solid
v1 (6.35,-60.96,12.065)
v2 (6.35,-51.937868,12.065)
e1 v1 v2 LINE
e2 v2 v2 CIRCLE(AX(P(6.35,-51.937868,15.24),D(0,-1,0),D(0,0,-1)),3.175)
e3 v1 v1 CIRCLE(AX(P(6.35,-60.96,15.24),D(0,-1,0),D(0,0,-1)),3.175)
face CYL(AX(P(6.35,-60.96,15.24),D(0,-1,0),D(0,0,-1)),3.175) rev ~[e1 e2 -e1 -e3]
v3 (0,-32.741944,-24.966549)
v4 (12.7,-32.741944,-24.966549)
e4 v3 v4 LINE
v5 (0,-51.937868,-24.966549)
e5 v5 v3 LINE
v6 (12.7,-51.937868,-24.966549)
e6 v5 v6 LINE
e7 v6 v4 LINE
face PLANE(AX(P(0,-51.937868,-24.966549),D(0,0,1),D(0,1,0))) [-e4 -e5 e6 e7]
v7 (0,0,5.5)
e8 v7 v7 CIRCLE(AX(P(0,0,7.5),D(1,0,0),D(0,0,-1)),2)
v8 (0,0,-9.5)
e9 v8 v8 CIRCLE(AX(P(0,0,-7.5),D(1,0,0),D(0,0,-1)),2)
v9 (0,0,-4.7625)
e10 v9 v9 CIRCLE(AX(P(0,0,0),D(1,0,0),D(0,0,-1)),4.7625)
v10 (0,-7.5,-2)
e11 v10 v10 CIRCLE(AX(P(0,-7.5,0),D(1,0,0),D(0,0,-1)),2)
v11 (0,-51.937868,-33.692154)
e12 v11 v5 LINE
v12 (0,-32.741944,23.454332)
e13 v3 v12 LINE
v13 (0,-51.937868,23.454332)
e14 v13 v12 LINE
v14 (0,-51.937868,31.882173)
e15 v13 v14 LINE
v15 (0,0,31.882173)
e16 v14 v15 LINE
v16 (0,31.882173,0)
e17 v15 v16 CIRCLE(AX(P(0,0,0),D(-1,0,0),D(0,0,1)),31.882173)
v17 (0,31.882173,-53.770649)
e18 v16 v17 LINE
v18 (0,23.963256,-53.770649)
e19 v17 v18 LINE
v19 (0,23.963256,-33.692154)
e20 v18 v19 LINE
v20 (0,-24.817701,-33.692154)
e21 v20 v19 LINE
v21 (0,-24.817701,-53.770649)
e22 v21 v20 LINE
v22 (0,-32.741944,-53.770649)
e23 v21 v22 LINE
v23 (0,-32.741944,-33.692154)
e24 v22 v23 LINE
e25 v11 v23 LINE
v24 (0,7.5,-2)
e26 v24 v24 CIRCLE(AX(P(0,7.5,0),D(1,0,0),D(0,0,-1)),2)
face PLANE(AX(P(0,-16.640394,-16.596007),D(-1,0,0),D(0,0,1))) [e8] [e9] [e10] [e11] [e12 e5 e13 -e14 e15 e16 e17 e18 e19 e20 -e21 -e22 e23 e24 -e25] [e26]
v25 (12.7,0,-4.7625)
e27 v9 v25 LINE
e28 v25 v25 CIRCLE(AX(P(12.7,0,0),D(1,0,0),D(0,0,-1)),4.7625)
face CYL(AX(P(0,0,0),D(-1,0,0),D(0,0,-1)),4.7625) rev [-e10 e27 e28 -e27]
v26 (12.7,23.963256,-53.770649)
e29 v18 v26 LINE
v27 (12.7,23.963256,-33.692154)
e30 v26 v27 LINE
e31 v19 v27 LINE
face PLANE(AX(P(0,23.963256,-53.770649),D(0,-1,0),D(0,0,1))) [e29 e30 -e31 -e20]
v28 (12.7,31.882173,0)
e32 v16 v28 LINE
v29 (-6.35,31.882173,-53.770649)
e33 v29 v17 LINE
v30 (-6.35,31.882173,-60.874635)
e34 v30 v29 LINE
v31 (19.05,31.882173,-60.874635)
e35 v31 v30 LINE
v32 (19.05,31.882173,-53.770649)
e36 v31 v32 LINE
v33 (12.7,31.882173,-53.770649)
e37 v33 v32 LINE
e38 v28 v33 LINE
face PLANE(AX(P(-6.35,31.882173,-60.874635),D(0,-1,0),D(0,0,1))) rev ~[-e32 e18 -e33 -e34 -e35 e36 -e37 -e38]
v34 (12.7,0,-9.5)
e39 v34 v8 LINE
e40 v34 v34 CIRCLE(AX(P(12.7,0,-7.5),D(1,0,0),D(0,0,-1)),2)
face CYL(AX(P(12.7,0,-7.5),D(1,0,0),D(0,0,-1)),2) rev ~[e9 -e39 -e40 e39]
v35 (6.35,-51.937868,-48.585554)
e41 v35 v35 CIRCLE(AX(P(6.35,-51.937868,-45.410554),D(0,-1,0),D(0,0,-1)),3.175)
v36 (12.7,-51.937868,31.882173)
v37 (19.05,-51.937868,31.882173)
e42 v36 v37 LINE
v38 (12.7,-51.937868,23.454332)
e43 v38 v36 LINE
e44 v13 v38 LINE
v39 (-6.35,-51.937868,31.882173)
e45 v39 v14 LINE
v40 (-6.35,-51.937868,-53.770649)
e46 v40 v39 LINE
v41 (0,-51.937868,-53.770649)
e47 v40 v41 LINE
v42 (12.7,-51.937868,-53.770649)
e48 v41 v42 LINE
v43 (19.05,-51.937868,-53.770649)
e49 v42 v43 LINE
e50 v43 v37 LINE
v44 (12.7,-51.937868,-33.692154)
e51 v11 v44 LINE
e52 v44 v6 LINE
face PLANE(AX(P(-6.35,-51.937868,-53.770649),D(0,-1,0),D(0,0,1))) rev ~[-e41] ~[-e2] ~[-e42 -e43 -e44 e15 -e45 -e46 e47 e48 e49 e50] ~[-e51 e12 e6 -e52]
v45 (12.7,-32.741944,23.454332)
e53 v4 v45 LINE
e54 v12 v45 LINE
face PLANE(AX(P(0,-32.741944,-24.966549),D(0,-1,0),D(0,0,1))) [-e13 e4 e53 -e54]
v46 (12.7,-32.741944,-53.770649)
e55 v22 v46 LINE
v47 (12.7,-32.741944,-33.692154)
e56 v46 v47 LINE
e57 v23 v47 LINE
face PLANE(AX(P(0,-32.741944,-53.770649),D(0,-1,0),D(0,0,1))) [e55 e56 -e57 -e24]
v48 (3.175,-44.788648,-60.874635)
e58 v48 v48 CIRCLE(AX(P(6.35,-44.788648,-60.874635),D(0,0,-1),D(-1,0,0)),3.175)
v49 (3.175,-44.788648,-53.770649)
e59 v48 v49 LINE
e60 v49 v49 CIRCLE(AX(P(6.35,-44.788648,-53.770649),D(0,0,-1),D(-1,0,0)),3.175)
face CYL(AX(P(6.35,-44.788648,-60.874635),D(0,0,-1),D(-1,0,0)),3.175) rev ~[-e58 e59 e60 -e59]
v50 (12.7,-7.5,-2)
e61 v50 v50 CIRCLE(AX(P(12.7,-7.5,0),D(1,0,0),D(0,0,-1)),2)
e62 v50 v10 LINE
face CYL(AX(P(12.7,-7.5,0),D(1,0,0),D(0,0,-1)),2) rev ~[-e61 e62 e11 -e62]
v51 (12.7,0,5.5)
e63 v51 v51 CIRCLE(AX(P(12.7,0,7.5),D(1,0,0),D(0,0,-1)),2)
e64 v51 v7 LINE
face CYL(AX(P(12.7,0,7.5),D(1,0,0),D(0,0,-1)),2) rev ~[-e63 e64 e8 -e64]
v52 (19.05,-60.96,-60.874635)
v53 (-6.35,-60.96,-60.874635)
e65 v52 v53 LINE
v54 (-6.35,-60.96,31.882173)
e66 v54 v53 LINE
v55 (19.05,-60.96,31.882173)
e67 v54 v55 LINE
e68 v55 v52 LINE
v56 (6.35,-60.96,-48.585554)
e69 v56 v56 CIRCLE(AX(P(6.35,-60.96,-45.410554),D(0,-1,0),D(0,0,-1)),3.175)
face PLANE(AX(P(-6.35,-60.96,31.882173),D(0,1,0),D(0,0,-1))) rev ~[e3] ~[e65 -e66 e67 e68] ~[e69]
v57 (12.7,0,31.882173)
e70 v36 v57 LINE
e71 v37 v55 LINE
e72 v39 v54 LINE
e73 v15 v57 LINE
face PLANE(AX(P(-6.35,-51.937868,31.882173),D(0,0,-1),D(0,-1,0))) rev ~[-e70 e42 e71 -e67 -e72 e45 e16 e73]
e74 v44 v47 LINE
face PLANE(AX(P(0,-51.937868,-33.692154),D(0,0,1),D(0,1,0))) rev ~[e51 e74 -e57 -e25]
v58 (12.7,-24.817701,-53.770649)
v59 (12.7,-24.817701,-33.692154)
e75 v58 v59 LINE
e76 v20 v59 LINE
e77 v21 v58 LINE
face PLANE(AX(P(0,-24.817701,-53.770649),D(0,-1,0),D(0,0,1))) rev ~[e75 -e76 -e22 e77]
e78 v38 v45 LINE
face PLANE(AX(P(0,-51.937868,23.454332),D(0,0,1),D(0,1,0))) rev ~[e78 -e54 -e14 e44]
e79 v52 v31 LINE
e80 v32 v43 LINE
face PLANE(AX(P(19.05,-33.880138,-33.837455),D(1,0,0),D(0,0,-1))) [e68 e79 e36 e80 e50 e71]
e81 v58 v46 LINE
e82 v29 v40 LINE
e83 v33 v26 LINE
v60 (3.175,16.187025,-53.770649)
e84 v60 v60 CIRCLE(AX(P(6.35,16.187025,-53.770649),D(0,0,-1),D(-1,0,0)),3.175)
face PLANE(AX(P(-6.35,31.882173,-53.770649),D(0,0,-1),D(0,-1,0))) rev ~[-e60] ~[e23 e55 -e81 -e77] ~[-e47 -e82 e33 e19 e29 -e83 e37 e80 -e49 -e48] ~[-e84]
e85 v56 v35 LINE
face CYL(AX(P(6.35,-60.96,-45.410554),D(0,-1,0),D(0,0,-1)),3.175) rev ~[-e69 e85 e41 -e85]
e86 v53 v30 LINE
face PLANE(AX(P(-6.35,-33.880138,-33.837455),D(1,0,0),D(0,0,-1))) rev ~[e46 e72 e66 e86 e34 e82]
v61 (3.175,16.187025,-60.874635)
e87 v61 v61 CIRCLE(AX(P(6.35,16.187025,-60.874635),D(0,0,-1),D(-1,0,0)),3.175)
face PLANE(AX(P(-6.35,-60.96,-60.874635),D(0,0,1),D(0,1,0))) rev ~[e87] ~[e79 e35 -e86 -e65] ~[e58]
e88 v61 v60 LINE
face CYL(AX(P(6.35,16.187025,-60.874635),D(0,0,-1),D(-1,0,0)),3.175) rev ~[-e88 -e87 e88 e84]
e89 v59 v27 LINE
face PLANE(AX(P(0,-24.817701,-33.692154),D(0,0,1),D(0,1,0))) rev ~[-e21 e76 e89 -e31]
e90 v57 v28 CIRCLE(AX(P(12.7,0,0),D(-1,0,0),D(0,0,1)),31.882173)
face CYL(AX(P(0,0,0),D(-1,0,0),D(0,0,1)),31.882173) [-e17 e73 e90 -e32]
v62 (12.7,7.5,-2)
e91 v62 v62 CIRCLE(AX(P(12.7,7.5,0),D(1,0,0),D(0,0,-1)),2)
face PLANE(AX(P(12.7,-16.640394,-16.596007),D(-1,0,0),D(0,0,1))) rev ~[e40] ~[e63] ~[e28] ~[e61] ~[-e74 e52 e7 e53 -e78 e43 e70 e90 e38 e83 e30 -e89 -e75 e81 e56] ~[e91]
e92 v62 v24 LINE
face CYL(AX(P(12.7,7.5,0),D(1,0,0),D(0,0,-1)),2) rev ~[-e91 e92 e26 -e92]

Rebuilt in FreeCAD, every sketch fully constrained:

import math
import FreeCAD as App
import Part
import Sketcher
from FreeCAD import Vector
Q = App.Units.Quantity


def add_polygon(sketch, points):
    """Adds a closed chain of lines whose ends are joined by coincident constraints."""
    first, n = sketch.GeometryCount, len(points)
    for a, b in zip(points, points[1:] + points[:1]):
        sketch.addGeometry(Part.LineSegment(App.Vector(*a, 0), App.Vector(*b, 0)), False)
    for i in range(n):
        sketch.addConstraint(Sketcher.Constraint("Coincident", first + i, 2, first + (i + 1) % n, 1))

doc = App.newDocument("Part")
body = doc.addObject("PartDesign::Body", "Body")

# Sketch on YZ plane
sketch1 = body.newObject("Sketcher::SketchObject", "Sketch")
sketch1.AttachmentSupport = (doc.getObject("YZ_Plane"), [""])
sketch1.MapMode = "FlatFace"
sketch1.addGeometry([
    Part.LineSegment(Vector(31.9, -60.9, 0), Vector(31.9, 0, 0)),  # 0
    Part.ArcOfCircle(Part.Circle(Vector(0, 0, 0), Vector(0, 0, 1), 31.9), math.radians(0), math.radians(90)),  # 1
    Part.LineSegment(Vector(0, 31.9, 0), Vector(-61, 31.9, 0)),  # 2
    Part.LineSegment(Vector(-61, 31.9, 0), Vector(-61, -60.9, 0)),  # 3
    Part.LineSegment(Vector(-61, -60.9, 0), Vector(31.9, -60.9, 0)),  # 4
    Part.Circle(Vector(0, 0, 0), Vector(0, 0, 1), 4.8),  # 5
], False)
sketch1.addConstraint([
    Sketcher.Constraint("Tangent", 0, 2, 1, 1),
    Sketcher.Constraint("Tangent", 1, 2, 2, 1),
    Sketcher.Constraint("Coincident", 2, 2, 3, 1),
    Sketcher.Constraint("Coincident", 3, 2, 4, 1),
    Sketcher.Constraint("Coincident", 4, 2, 0, 1),
    Sketcher.Constraint("Vertical", 0),
    Sketcher.Constraint("Horizontal", 2),
    Sketcher.Constraint("Vertical", 3),
    Sketcher.Constraint("Horizontal", 4),
    Sketcher.Constraint("Coincident", 1, 3, -1, 1),
    Sketcher.Constraint("Coincident", 5, 3, -1, 1),
    Sketcher.Constraint("Diameter", 5, Q("0.375 in")),
    Sketcher.Constraint("DistanceX", 2, 2, 2, 1, Q("2.4 in")),
    Sketcher.Constraint("Radius", 1, Q("31.882173 mm")),
    Sketcher.Constraint("DistanceY", 0, 1, 0, 2, Q("60.874635 mm")),
])
pad1 = body.newObject("PartDesign::Pad", "Pad")
pad1.Profile = sketch1
pad1.Length = Q("0.5 in")

# Sketch on YZ plane
sketch2 = body.newObject("Sketcher::SketchObject", "Sketch001")
sketch2.AttachmentSupport = (doc.getObject("YZ_Plane"), [""])
sketch2.MapMode = "FlatFace"
sketch2.AttachmentOffset = App.Placement(Vector(0, 0, 0.5 * 25.4), App.Rotation())
add_polygon(sketch2, [(32, -61), (32, -54), (-52, -54), (-52, 32), (-61, 32), (-61, -61)])  # lines 0-5
sketch2.addConstraint([
    Sketcher.Constraint("Vertical", 0),
    Sketcher.Constraint("Horizontal", 1),
    Sketcher.Constraint("Vertical", 2),
    Sketcher.Constraint("Horizontal", 3),
    Sketcher.Constraint("Vertical", 4),
    Sketcher.Constraint("Horizontal", 5),
    Sketcher.Constraint("DistanceX", 3, 2, -1, 1, Q("2.4 in")),
    Sketcher.Constraint("DistanceX", 1, 2, 1, 1, Q("83.820041 mm")),
    Sketcher.Constraint("DistanceY", 2, 1, 2, 2, Q("85.652822 mm")),
    Sketcher.Constraint("DistanceX", 3, 2, 3, 1, Q("9.022132 mm")),
    Sketcher.Constraint("DistanceY", 0, 1, 0, 2, Q("7.103986 mm")),
    Sketcher.Constraint("DistanceY", 0, 2, -1, 1, Q("53.770649 mm")),
])
pad2 = body.newObject("PartDesign::Pad", "Pad001")
pad2.Profile = sketch2
pad2.Type = "TwoLengths"
pad2.Length = Q("0.25 in")
pad2.Length2 = Q("0.75 in")

# Sketch on YZ plane
sketch3 = body.newObject("Sketcher::SketchObject", "Sketch002")
sketch3.AttachmentSupport = (doc.getObject("YZ_Plane"), [""])
sketch3.MapMode = "FlatFace"
add_polygon(sketch3, [(24, -54), (-25, -54), (-25, -34), (24, -34)])  # lines 0-3
add_polygon(sketch3, [(-33, -25), (-52, -25), (-52, 23), (-33, 23)])  # lines 4-7
add_polygon(sketch3, [(-33, -54), (-52, -54), (-52, -34), (-33, -34)])  # lines 8-11
sketch3.addConstraint([
    Sketcher.Constraint("Horizontal", 0),
    Sketcher.Constraint("Vertical", 1),
    Sketcher.Constraint("Horizontal", 2),
    Sketcher.Constraint("Vertical", 3),
    Sketcher.Constraint("Horizontal", 4),
    Sketcher.Constraint("Vertical", 5),
    Sketcher.Constraint("Horizontal", 6),
    Sketcher.Constraint("Vertical", 7),
    Sketcher.Constraint("Horizontal", 8),
    Sketcher.Constraint("Vertical", 9),
    Sketcher.Constraint("Horizontal", 10),
    Sketcher.Constraint("Vertical", 11),
    Sketcher.Constraint("Horizontal", 3, 2, 8, 2),
    Sketcher.Constraint("Horizontal", 2, 2, 9, 2),
    Sketcher.Constraint("Vertical", 5, 2, 8, 2),
    Sketcher.Constraint("Vertical", 7, 2, 10, 2),
    Sketcher.Constraint("DistanceY", 5, 1, 5, 2, Q("48.420881 mm")),
    Sketcher.Constraint("DistanceX", 0, 2, -1, 1, Q("24.817701 mm")),
    Sketcher.Constraint("DistanceY", 0, 2, 4, 2, Q("28.8041 mm")),
    Sketcher.Constraint("DistanceX", 6, 2, 2, 2, Q("56.7052 mm")),
    Sketcher.Constraint("DistanceX", 0, 2, 0, 1, Q("48.780957 mm")),
    Sketcher.Constraint("DistanceX", 4, 2, 4, 1, Q("19.195924 mm")),
    Sketcher.Constraint("DistanceY", 1, 1, 1, 2, Q("20.078495 mm")),
    Sketcher.Constraint("DistanceY", 0, 2, -1, 1, Q("53.770649 mm")),
])
pocket1 = body.newObject("PartDesign::Pocket", "Pocket")
pocket1.Profile = sketch3
pocket1.Length = Q("1.03 in")
pocket1.Reversed = True

# Sketch on XY plane
sketch4 = body.newObject("Sketcher::SketchObject", "Sketch003")
sketch4.AttachmentSupport = (doc.getObject("XY_Plane"), [""])
sketch4.MapMode = "FlatFace"
sketch4.AttachmentOffset = App.Placement(Vector(0, 0, -60.874635), App.Rotation())
sketch4.addGeometry([
    Part.Circle(Vector(6.3, 16.2, 0), Vector(0, 0, 1), 3.2),
    Part.Circle(Vector(6.3, -44.8, 0), Vector(0, 0, 1), 3.2),
], False)
sketch4.addConstraint([
    Sketcher.Constraint("Equal", 0, 1),
    Sketcher.Constraint("Vertical", 0, 3, 1, 3),
    Sketcher.Constraint("Diameter", 0, Q("0.25 in")),
    Sketcher.Constraint("DistanceX", -1, 1, 0, 3, Q("0.25 in")),
    Sketcher.Constraint("DistanceY", 1, 3, -1, 1, Q("44.788648 mm")),
    Sketcher.Constraint("DistanceY", -1, 1, 0, 3, Q("16.187025 mm")),
])
pocket2 = body.newObject("PartDesign::Pocket", "Pocket001")
pocket2.Profile = sketch4
pocket2.Length = Q("0.45 in")
pocket2.Reversed = True

# Sketch on XZ plane
sketch5 = body.newObject("Sketcher::SketchObject", "Sketch004")
sketch5.AttachmentSupport = (doc.getObject("XZ_Plane"), [""])
sketch5.MapMode = "FlatFace"
sketch5.AttachmentOffset = App.Placement(Vector(0, 0, 2.4 * 25.4), App.Rotation())
sketch5.addGeometry([
    Part.Circle(Vector(6.3, 15.2, 0), Vector(0, 0, 1), 3.2),
    Part.Circle(Vector(6.3, -45.4, 0), Vector(0, 0, 1), 3.2),
], False)
sketch5.addConstraint([
    Sketcher.Constraint("Equal", 0, 1),
    Sketcher.Constraint("Vertical", 0, 3, 1, 3),
    Sketcher.Constraint("Diameter", 0, Q("0.25 in")),
    Sketcher.Constraint("DistanceY", -1, 1, 0, 3, Q("0.6 in")),
    Sketcher.Constraint("DistanceX", -1, 1, 0, 3, Q("0.25 in")),
    Sketcher.Constraint("DistanceY", 1, 3, -1, 1, Q("45.410554 mm")),
])
pocket3 = body.newObject("PartDesign::Pocket", "Pocket002")
pocket3.Profile = sketch5
pocket3.Length = Q("0.45 in")

# Sketch on YZ plane
sketch6 = body.newObject("Sketcher::SketchObject", "Sketch005")
sketch6.AttachmentSupport = (doc.getObject("YZ_Plane"), [""])
sketch6.MapMode = "FlatFace"
sketch6.AttachmentOffset = App.Placement(Vector(0, 0, 0.5 * 25.4), App.Rotation())
sketch6.addGeometry([
    Part.Circle(Vector(0, -7.5, 0), Vector(0, 0, 1), 2),
    Part.Circle(Vector(-7.5, 0, 0), Vector(0, 0, 1), 2),
    Part.Circle(Vector(0, 7.5, 0), Vector(0, 0, 1), 2),
    Part.Circle(Vector(7.5, 0, 0), Vector(0, 0, 1), 2),
], False)
sketch6.addConstraint([
    Sketcher.Constraint("Equal", 0, 1),
    Sketcher.Constraint("Equal", 1, 2),
    Sketcher.Constraint("Equal", 2, 3),
    Sketcher.Constraint("Symmetric", 0, 3, 2, 3, -1, 1),
    Sketcher.Constraint("Symmetric", 1, 3, 3, 3, -1, 1),
    Sketcher.Constraint("PointOnObject", 0, 3, -2),
    Sketcher.Constraint("PointOnObject", 1, 3, -1),
    Sketcher.Constraint("Diameter", 0, Q("4 mm")),
    Sketcher.Constraint("DistanceY", 0, 3, -1, 1, Q("7.5 mm")),
    Sketcher.Constraint("DistanceX", 1, 3, -1, 1, Q("7.5 mm")),
])
pocket4 = body.newObject("PartDesign::Pocket", "Pocket003")
pocket4.Profile = sketch6
pocket4.Length = Q("0.86 in")

doc.recompute()
